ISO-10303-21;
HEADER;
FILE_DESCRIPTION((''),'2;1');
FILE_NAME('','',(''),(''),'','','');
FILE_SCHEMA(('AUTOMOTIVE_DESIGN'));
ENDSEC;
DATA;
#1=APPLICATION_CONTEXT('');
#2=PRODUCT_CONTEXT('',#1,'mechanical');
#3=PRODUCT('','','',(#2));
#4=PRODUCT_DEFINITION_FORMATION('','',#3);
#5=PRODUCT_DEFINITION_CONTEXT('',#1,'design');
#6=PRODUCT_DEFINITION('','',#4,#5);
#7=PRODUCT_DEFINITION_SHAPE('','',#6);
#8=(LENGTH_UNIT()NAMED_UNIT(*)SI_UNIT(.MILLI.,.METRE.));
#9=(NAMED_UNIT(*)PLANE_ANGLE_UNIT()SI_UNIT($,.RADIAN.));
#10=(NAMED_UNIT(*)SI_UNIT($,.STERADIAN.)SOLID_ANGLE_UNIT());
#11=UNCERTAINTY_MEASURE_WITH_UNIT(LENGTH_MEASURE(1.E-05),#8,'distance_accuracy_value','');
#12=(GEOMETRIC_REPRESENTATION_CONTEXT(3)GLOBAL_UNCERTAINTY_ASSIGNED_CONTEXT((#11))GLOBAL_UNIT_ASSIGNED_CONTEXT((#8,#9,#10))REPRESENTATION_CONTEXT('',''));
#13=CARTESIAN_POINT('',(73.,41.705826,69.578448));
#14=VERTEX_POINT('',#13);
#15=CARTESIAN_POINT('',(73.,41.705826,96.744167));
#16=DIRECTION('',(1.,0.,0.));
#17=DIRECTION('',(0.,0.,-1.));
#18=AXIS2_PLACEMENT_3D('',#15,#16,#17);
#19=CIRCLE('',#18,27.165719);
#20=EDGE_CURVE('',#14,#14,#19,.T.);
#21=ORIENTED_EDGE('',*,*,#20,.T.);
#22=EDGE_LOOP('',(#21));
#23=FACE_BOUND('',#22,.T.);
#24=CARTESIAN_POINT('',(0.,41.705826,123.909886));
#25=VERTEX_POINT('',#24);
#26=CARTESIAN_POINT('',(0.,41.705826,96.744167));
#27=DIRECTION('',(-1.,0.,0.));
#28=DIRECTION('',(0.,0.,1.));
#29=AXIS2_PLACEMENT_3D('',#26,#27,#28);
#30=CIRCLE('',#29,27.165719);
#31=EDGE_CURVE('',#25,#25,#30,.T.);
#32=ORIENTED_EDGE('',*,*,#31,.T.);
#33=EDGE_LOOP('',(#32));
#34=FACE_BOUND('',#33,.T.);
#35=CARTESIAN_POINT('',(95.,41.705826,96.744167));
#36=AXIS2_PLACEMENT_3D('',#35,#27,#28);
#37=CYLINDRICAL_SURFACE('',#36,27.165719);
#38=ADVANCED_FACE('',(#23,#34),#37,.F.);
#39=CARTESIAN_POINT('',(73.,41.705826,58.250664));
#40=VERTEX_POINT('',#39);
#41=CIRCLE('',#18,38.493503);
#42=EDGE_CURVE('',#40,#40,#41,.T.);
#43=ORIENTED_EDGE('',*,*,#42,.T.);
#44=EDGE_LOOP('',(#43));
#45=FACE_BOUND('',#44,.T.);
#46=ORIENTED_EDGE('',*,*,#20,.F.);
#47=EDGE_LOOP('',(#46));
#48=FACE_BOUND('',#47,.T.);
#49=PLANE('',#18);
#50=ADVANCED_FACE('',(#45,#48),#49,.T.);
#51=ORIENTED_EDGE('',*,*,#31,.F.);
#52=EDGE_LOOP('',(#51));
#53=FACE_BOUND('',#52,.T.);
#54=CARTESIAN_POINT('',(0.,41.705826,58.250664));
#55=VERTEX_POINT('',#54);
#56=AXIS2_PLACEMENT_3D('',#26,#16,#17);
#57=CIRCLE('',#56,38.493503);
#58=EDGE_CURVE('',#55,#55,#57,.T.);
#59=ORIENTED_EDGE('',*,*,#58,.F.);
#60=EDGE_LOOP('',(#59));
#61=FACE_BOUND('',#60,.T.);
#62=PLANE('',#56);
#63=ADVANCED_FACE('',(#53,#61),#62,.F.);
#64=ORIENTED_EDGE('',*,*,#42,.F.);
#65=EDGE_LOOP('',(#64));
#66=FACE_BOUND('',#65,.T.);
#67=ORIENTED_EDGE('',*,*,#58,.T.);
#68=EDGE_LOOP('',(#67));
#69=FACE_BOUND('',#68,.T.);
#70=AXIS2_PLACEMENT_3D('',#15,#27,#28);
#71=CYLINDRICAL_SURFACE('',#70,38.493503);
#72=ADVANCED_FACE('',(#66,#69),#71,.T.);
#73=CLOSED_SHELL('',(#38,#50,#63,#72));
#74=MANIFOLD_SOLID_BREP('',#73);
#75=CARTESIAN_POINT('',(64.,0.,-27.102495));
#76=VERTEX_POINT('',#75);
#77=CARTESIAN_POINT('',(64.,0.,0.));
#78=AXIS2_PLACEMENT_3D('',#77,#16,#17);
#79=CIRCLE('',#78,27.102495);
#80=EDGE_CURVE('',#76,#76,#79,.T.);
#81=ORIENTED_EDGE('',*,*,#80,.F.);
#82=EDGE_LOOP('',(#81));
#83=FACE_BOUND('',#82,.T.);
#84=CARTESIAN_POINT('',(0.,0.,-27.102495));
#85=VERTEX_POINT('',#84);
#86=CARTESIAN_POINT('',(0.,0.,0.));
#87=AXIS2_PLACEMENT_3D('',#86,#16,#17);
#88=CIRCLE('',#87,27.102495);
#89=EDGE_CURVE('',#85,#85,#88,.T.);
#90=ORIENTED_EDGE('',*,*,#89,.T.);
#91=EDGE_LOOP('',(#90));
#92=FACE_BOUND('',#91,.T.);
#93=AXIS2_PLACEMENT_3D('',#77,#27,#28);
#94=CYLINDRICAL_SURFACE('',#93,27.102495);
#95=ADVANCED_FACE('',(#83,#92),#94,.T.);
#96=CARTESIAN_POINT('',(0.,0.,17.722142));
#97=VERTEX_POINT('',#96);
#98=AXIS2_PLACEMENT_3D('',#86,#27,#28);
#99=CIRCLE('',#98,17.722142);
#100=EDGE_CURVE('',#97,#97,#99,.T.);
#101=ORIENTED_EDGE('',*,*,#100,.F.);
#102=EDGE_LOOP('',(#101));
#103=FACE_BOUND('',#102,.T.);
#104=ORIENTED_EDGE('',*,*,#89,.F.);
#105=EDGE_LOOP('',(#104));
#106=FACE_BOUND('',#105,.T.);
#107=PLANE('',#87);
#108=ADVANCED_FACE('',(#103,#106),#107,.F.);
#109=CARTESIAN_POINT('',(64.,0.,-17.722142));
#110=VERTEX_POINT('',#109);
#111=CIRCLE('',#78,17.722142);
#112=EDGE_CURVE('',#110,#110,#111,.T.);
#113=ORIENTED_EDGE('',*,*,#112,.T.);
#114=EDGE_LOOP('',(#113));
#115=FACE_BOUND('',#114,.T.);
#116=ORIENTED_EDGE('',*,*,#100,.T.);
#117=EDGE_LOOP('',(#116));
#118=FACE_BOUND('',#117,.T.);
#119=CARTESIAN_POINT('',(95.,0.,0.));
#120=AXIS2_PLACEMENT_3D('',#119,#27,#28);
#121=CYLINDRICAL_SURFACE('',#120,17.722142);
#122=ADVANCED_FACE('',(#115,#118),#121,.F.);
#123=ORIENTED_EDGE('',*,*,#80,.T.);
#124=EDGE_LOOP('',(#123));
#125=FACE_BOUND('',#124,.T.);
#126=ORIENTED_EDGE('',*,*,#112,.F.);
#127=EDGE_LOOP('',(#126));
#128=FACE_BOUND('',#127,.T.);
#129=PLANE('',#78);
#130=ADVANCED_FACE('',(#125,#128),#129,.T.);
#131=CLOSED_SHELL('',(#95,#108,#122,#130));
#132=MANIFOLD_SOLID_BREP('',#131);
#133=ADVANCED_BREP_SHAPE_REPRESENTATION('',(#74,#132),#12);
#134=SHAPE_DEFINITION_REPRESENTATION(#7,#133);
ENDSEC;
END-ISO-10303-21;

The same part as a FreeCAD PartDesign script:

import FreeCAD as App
import Part
import Sketcher
from FreeCAD import Vector

doc = App.newDocument("Part")
body = doc.addObject("PartDesign::Body", "Body")

# Sketch on YZ plane
sketch1 = body.newObject("Sketcher::SketchObject", "Sketch")
sketch1.AttachmentSupport = (doc.getObject("YZ_Plane"), [""])
sketch1.MapMode = "FlatFace"
sketch1.addGeometry(Part.Circle(Vector(0, 0, 0), Vector(0, 0, 1), 27), False)
sketch1.addConstraint(Sketcher.Constraint("Coincident", 0, 3, -1, 1))
sketch1.addConstraint(Sketcher.Constraint("Diameter", 0, 54.204991))
pad1 = body.newObject("PartDesign::Pad", "Pad")
pad1.Profile = sketch1
pad1.Length = 64

# Sketch on YZ plane
sketch2 = body.newObject("Sketcher::SketchObject", "Sketch001")
sketch2.AttachmentSupport = (doc.getObject("YZ_Plane"), [""])
sketch2.MapMode = "FlatFace"
sketch2.addGeometry(Part.Circle(Vector(0, 0, 0), Vector(0, 0, 1), 18), False)
sketch2.addConstraint(Sketcher.Constraint("Coincident", 0, 3, -1, 1))
sketch2.addConstraint(Sketcher.Constraint("Diameter", 0, 35.444283))
pocket1 = body.newObject("PartDesign::Pocket", "Pocket")
pocket1.Profile = sketch2
pocket1.Length = 95
pocket1.Reversed = True
body2 = doc.addObject("PartDesign::Body", "Body001")

# Sketch on YZ plane
sketch3 = body2.newObject("Sketcher::SketchObject", "Sketch002")
sketch3.AttachmentSupport = (doc.getObject("YZ_Plane001"), [""])
sketch3.MapMode = "FlatFace"
sketch3.addGeometry(Part.Circle(Vector(42, 97, 0), Vector(0, 0, 1), 38), False)
sketch3.addConstraint(Sketcher.Constraint("Diameter", 0, 76.987006))
sketch3.addConstraint(Sketcher.Constraint("DistanceX", -1, 1, 0, 3, 41.705826))
sketch3.addConstraint(Sketcher.Constraint("DistanceY", -1, 1, 0, 3, 96.744167))
pad2 = body2.newObject("PartDesign::Pad", "Pad001")
pad2.Profile = sketch3
pad2.Length = 73

# Sketch on YZ plane
sketch4 = body2.newObject("Sketcher::SketchObject", "Sketch003")
sketch4.AttachmentSupport = (doc.getObject("YZ_Plane001"), [""])
sketch4.MapMode = "FlatFace"
sketch4.addGeometry(Part.Circle(Vector(42, 97, 0), Vector(0, 0, 1), 27), False)
sketch4.addConstraint(Sketcher.Constraint("Diameter", 0, 54.331438))
sketch4.addConstraint(Sketcher.Constraint("DistanceX", -1, 1, 0, 3, 41.705826))
sketch4.addConstraint(Sketcher.Constraint("DistanceY", -1, 1, 0, 3, 96.744167))
pocket2 = body2.newObject("PartDesign::Pocket", "Pocket001")
pocket2.Profile = sketch4
pocket2.Length = 95
pocket2.Reversed = True

doc.recompute()
